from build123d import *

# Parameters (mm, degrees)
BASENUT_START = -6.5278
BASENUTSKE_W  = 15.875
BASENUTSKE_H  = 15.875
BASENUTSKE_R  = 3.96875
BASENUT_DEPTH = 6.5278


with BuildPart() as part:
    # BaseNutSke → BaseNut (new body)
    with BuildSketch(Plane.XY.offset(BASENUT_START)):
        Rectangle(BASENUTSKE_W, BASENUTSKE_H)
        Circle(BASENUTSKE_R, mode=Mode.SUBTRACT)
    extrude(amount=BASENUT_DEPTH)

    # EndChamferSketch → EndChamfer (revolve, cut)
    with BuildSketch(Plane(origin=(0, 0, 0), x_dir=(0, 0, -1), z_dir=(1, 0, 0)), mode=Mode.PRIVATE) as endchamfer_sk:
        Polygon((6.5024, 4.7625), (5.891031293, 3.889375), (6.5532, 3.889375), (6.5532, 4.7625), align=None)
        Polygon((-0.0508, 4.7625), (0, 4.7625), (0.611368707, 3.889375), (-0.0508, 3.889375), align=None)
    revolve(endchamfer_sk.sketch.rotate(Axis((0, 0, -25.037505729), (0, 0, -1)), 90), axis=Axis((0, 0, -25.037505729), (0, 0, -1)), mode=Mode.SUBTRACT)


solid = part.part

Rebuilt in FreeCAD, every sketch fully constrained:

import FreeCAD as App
import Part
import Sketcher
from FreeCAD import Vector
Q = App.Units.Quantity

doc = App.newDocument("Part")
body = doc.addObject("PartDesign::Body", "Body")

sketch1 = body.newObject("Sketcher::SketchObject", "Sketch")
sketch1.AttachmentSupport = (doc.getObject("XY_Plane"), [""])
sketch1.MapMode = "FlatFace"
sketch1.AttachmentOffset = App.Placement(Vector(0, 0, -0.257 * 25.4), App.Rotation())
sketch1.addGeometry([
    Part.LineSegment(Vector(-7.9, 7.9, 0), Vector(-7.9, -7.9, 0)),
    Part.LineSegment(Vector(-7.9, -7.9, 0), Vector(7.9, -7.9, 0)),
    Part.LineSegment(Vector(7.9, -7.9, 0), Vector(7.9, 7.9, 0)),
    Part.LineSegment(Vector(7.9, 7.9, 0), Vector(-7.9, 7.9, 0)),
    Part.Circle(Vector(0, 0, 0), Vector(0, 0, 1), 4),
], False)
sketch1.addConstraint([
    Sketcher.Constraint("Coincident", 0, 2, 1, 1),
    Sketcher.Constraint("Coincident", 1, 2, 2, 1),
    Sketcher.Constraint("Coincident", 2, 2, 3, 1),
    Sketcher.Constraint("Coincident", 3, 2, 0, 1),
    Sketcher.Constraint("Vertical", 0),
    Sketcher.Constraint("Horizontal", 1),
    Sketcher.Constraint("Vertical", 2),
    Sketcher.Constraint("Horizontal", 3),
    Sketcher.Constraint("Coincident", 4, 3, -1, 1),
    Sketcher.Constraint("Symmetric", 0, 2, 2, 2, -1, 1),
    Sketcher.Constraint("Equal", 3, 0),
    Sketcher.Constraint("Diameter", 4, Q("0.3125 in")),
    Sketcher.Constraint("DistanceX", 1, 1, 1, 2, Q("0.625 in")),
])
pad1 = body.newObject("PartDesign::Pad", "Pad")
pad1.Profile = sketch1
pad1.Length = Q("0.257 in")

sketch2 = body.newObject("Sketcher::SketchObject", "Sketch001")
sketch2.AttachmentSupport = (doc.getObject("YZ_Plane"), [""])
sketch2.MapMode = "FlatFace"
sketch2.addGeometry([
    Part.LineSegment(Vector(4.76, -6.5, 0), Vector(3.89, -5.89, 0)),
    Part.LineSegment(Vector(3.89, -5.89, 0), Vector(3.89, -6.55, 0)),
    Part.LineSegment(Vector(3.89, -6.55, 0), Vector(4.76, -6.55, 0)),
    Part.LineSegment(Vector(4.76, -6.55, 0), Vector(4.76, -6.5, 0)),
    Part.LineSegment(Vector(4.76, 0, 0), Vector(4.76, 0.05, 0)),
    Part.LineSegment(Vector(4.76, 0.05, 0), Vector(3.89, 0.05, 0)),
    Part.LineSegment(Vector(3.89, 0.05, 0), Vector(3.89, -0.61, 0)),
    Part.LineSegment(Vector(3.89, -0.61, 0), Vector(4.76, 0, 0)),
], False)
sketch2.addConstraint([
    Sketcher.Constraint("Coincident", 0, 2, 1, 1),
    Sketcher.Constraint("Coincident", 1, 2, 2, 1),
    Sketcher.Constraint("Coincident", 2, 2, 3, 1),
    Sketcher.Constraint("Coincident", 3, 2, 0, 1),
    Sketcher.Constraint("Coincident", 4, 2, 5, 1),
    Sketcher.Constraint("Coincident", 5, 2, 6, 1),
    Sketcher.Constraint("Coincident", 6, 2, 7, 1),
    Sketcher.Constraint("Coincident", 7, 2, 4, 1),
    Sketcher.Constraint("Vertical", 1),
    Sketcher.Constraint("Horizontal", 2),
    Sketcher.Constraint("Vertical", 3),
    Sketcher.Constraint("Vertical", 4),
    Sketcher.Constraint("Horizontal", 5),
    Sketcher.Constraint("Vertical", 6),
    Sketcher.Constraint("PointOnObject", 7, 2, -1),
    Sketcher.Constraint("Vertical", 3, 2, 4, 2),
    Sketcher.Constraint("Vertical", 1, 2, 5, 2),
    Sketcher.Constraint("Equal", 3, 4),
    Sketcher.Constraint("Equal", 1, 6),
    Sketcher.Constraint("Angle", 0, Q("145 deg")),
    Sketcher.Constraint("DistanceY", 3, 1, 3, 2, Q("0.002 in")),
    Sketcher.Constraint("DistanceY", 2, 2, 4, 2, Q("0.26 in")),
    Sketcher.Constraint("DistanceX", -1, 1, 2, 2, Q("0.1875 in")),
    Sketcher.Constraint("DistanceY", 1, 2, 1, 1, Q("0.662169 mm")),
])
groove = body.newObject("PartDesign::Groove", "Groove")
groove.Profile = sketch2
groove.ReferenceAxis = (sketch2, ["V_Axis"])
groove.Angle = 360

doc.recompute()
